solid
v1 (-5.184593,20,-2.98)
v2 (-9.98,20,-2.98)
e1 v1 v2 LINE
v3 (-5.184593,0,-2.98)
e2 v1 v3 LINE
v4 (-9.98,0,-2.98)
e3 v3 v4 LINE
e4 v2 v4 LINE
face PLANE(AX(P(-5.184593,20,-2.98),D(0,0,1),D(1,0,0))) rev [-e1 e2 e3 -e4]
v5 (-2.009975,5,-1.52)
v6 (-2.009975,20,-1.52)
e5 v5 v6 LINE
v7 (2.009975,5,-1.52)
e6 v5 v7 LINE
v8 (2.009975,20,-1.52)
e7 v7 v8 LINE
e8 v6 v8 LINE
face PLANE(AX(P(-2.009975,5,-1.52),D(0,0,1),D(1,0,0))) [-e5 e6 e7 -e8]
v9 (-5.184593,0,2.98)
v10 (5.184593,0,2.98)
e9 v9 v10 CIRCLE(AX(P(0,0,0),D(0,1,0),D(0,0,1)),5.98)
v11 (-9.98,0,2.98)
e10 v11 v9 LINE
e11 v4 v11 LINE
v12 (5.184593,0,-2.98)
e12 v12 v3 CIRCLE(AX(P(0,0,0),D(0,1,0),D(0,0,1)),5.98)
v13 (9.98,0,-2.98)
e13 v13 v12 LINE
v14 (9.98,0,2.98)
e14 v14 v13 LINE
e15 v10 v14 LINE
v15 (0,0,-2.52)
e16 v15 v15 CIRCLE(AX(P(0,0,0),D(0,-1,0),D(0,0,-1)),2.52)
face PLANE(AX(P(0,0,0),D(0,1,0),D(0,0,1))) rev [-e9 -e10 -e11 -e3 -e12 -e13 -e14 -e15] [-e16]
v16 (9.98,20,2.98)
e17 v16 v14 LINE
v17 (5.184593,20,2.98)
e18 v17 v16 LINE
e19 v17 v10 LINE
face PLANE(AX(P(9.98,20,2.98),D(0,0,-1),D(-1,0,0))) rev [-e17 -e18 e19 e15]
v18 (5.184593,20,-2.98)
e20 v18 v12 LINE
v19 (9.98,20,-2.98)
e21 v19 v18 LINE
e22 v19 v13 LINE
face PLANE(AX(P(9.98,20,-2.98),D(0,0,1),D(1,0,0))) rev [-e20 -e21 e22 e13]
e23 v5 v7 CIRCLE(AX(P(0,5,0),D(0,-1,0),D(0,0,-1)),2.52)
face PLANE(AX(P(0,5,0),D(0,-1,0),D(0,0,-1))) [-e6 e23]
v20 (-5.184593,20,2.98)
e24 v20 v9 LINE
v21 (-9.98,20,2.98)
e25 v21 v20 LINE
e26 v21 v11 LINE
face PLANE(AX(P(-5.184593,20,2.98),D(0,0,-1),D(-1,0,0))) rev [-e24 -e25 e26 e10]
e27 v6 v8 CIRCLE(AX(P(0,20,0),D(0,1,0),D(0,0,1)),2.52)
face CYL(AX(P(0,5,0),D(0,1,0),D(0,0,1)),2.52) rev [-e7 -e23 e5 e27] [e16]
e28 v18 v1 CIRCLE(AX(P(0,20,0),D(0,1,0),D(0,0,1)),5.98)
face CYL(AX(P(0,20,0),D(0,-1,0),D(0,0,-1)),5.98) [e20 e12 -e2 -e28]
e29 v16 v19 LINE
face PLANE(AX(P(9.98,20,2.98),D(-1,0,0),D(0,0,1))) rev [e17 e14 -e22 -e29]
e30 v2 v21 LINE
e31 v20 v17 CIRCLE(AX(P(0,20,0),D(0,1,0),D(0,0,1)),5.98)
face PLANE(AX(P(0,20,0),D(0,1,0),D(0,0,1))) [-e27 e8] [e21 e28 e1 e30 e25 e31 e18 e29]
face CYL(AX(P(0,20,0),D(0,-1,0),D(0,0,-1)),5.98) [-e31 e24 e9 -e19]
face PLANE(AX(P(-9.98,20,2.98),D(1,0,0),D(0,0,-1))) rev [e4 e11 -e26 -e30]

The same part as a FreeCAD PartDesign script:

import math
import FreeCAD as App
import Part
import Sketcher
from FreeCAD import Vector
Q = App.Units.Quantity

doc = App.newDocument("Part")
body = doc.addObject("PartDesign::Body", "Body")

sketch1 = body.newObject("Sketcher::SketchObject", "Sketch")
sketch1.AttachmentSupport = (doc.getObject("XZ_Plane"), [""])
sketch1.MapMode = "FlatFace"
sketch1.addGeometry(Part.LineSegment(Vector(5.2, 3, 0), Vector(10, 3, 0)), False)
sketch1.addGeometry(Part.LineSegment(Vector(10, 3, 0), Vector(10, -3, 0)), False)
sketch1.addGeometry(Part.LineSegment(Vector(10, -3, 0), Vector(5.2, -3, 0)), False)
sketch1.addGeometry(Part.ArcOfCircle(Part.Circle(Vector(0, 0, 0), Vector(0, 0, 1), 6), math.radians(-150), math.radians(-30)), False)
sketch1.addGeometry(Part.LineSegment(Vector(-5.2, -3, 0), Vector(-10, -3, 0)), False)
sketch1.addGeometry(Part.LineSegment(Vector(-10, -3, 0), Vector(-10, 3, 0)), False)
sketch1.addGeometry(Part.LineSegment(Vector(-10, 3, 0), Vector(-5.2, 3, 0)), False)
sketch1.addGeometry(Part.ArcOfCircle(Part.Circle(Vector(0, 0, 0), Vector(0, 0, 1), 6), math.radians(30), math.radians(150)), False)
sketch1.addConstraint(Sketcher.Constraint("Coincident", 0, 2, 1, 1))
sketch1.addConstraint(Sketcher.Constraint("Coincident", 1, 2, 2, 1))
sketch1.addConstraint(Sketcher.Constraint("Coincident", 2, 2, 3, 2))
sketch1.addConstraint(Sketcher.Constraint("Coincident", 3, 1, 4, 1))
sketch1.addConstraint(Sketcher.Constraint("Coincident", 4, 2, 5, 1))
sketch1.addConstraint(Sketcher.Constraint("Coincident", 5, 2, 6, 1))
sketch1.addConstraint(Sketcher.Constraint("Coincident", 6, 2, 7, 2))
sketch1.addConstraint(Sketcher.Constraint("Coincident", 7, 1, 0, 1))
sketch1.addConstraint(Sketcher.Constraint("Horizontal", 0))
sketch1.addConstraint(Sketcher.Constraint("Vertical", 1))
sketch1.addConstraint(Sketcher.Constraint("Horizontal", 2))
sketch1.addConstraint(Sketcher.Constraint("Horizontal", 4))
sketch1.addConstraint(Sketcher.Constraint("Vertical", 5))
sketch1.addConstraint(Sketcher.Constraint("Horizontal", 6))
sketch1.addConstraint(Sketcher.Constraint("Coincident", 3, 3, -1, 1))
sketch1.addConstraint(Sketcher.Constraint("Coincident", 7, 3, -1, 1))
sketch1.addConstraint(Sketcher.Constraint("Equal", 3, 7))
sketch1.addConstraint(Sketcher.Constraint("Symmetric", 0, 2, 4, 2, -1, 1))
sketch1.addConstraint(Sketcher.Constraint("Horizontal", 2, 2, 3, 1))
sketch1.addConstraint(Sketcher.Constraint("Horizontal", 0, 2, 5, 2))
sketch1.addConstraint(Sketcher.Constraint("Radius", 3, Q("5.98 mm")))
sketch1.addConstraint(Sketcher.Constraint("DistanceY", 1, 2, 1, 1, Q("5.96 mm")))
sketch1.addConstraint(Sketcher.Constraint("DistanceX", -1, 1, 0, 2, Q("9.98 mm")))
pad1 = body.newObject("PartDesign::Pad", "Pad")
pad1.Profile = sketch1
pad1.Length = 20
pad1.Reversed = True

sketch2 = body.newObject("Sketcher::SketchObject", "Sketch001")
sketch2.AttachmentSupport = (doc.getObject("XZ_Plane"), [""])
sketch2.MapMode = "FlatFace"
sketch2.AttachmentOffset = App.Placement(Vector(0, 0, -20), App.Rotation())
sketch2.addGeometry(Part.LineSegment(Vector(2, -1.5, 0), Vector(-2, -1.5, 0)), False)
sketch2.addGeometry(Part.ArcOfCircle(Part.Circle(Vector(0, 0, 0), Vector(0, 0, 1), 2.5), math.radians(-37), math.radians(217)), False)
sketch2.addConstraint(Sketcher.Constraint("Coincident", 0, 1, 1, 1))
sketch2.addConstraint(Sketcher.Constraint("Coincident", 1, 2, 0, 2))
sketch2.addConstraint(Sketcher.Constraint("Horizontal", 0))
sketch2.addConstraint(Sketcher.Constraint("Coincident", 1, 3, -1, 1))
sketch2.addConstraint(Sketcher.Constraint("Radius", 1, Q("2.52 mm")))
sketch2.addConstraint(Sketcher.Constraint("DistanceY", 0, 1, -1, 1, Q("1.52 mm")))
pocket1 = body.newObject("PartDesign::Pocket", "Pocket")
pocket1.Profile = sketch2
pocket1.Length = 15
pocket1.Reversed = True

sketch3 = body.newObject("Sketcher::SketchObject", "Sketch002")
sketch3.AttachmentSupport = (doc.getObject("XZ_Plane"), [""])
sketch3.MapMode = "FlatFace"
sketch3.AttachmentOffset = App.Placement(Vector(0, 0, -5), App.Rotation())
sketch3.addGeometry(Part.Circle(Vector(0, 0, 0), Vector(0, 0, 1), 2.5), False)
sketch3.addConstraint(Sketcher.Constraint("Coincident", 0, 3, -1, 1))
sketch3.addConstraint(Sketcher.Constraint("Diameter", 0, Q("5.04 mm")))
pocket2 = body.newObject("PartDesign::Pocket", "Pocket001")
pocket2.Profile = sketch3
pocket2.Length = 5
pocket2.Reversed = True

doc.recompute()
